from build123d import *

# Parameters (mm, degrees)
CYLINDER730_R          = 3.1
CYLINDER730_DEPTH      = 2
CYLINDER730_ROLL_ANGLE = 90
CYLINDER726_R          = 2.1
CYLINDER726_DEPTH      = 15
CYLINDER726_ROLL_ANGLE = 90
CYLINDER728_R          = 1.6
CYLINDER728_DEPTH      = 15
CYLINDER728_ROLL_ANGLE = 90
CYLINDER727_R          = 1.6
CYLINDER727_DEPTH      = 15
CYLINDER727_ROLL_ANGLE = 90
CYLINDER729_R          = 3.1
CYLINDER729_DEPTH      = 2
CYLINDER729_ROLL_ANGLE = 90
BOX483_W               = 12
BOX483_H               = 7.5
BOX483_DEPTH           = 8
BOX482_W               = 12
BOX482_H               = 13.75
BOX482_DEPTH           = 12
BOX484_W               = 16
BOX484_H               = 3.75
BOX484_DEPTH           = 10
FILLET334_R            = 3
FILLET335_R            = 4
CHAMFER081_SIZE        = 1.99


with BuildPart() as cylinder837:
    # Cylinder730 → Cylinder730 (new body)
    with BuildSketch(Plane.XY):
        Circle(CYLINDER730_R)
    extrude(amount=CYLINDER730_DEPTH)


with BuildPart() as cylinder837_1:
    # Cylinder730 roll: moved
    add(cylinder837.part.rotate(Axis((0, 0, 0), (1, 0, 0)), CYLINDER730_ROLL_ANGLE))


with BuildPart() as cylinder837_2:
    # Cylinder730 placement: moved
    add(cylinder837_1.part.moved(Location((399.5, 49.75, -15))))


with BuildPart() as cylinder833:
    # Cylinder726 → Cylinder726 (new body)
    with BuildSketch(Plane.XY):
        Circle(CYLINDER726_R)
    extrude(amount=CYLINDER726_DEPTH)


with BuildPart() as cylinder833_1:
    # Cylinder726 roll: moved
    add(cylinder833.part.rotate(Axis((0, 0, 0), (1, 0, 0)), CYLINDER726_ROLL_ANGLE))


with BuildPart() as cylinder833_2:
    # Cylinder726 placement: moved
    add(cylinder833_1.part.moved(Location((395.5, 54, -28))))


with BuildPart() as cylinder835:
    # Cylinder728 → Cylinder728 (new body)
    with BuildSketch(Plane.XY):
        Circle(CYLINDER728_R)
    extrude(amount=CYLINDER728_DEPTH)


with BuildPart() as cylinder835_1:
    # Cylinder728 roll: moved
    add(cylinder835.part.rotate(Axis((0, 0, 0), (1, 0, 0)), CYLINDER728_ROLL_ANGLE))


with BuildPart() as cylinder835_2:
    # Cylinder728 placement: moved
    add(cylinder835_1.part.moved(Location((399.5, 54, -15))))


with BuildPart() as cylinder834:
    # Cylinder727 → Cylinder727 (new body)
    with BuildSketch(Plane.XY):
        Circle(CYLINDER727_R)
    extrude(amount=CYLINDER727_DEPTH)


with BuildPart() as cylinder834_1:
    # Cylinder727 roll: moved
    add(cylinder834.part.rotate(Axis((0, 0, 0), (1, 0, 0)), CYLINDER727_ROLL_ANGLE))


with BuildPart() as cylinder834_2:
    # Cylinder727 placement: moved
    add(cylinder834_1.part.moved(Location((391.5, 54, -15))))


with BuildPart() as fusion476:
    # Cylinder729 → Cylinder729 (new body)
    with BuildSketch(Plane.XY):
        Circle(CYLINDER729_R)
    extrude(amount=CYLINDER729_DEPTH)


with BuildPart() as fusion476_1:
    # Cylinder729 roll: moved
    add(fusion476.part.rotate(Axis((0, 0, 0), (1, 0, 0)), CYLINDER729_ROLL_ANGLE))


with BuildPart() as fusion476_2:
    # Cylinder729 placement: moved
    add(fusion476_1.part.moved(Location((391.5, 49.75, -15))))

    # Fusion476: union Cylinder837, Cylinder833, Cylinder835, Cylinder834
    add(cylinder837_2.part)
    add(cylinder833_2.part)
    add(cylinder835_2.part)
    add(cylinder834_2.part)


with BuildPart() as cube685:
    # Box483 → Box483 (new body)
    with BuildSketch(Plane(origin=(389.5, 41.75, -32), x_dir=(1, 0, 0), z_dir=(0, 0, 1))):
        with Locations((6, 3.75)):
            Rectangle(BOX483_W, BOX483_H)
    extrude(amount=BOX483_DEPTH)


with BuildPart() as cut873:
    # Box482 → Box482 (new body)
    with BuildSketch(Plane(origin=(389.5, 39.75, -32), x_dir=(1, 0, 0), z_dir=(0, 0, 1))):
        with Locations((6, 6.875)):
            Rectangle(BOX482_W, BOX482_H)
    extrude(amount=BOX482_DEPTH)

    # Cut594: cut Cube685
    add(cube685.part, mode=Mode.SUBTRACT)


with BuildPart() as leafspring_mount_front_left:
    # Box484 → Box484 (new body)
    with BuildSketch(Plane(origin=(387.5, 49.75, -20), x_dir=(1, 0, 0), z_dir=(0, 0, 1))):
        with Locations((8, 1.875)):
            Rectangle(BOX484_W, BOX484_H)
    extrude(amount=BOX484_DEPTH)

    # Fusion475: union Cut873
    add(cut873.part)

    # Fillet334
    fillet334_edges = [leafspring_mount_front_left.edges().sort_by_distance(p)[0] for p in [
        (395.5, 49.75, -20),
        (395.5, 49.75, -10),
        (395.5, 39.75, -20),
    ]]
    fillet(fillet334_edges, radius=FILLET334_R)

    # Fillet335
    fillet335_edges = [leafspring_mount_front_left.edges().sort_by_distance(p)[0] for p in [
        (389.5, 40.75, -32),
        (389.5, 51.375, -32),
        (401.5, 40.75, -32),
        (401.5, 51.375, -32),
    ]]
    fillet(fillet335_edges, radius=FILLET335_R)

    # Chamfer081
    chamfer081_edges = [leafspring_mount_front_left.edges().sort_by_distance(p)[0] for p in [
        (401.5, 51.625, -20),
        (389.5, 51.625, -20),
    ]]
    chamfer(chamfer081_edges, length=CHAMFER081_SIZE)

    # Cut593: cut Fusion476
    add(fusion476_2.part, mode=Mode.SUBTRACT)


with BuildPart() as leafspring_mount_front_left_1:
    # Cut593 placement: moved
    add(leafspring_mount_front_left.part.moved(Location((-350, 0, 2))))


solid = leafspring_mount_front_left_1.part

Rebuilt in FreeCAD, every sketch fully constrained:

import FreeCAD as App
import Part
import Sketcher
from FreeCAD import Vector


def edges_at(feature, points):
    """Names of the edges that pass closest to the given points."""
    edges = feature.Shape.Edges
    near = lambda p: min(range(len(edges)), key=lambda i: edges[i].distToShape(Part.Vertex(*p))[0])
    return sorted({f"Edge{near(p) + 1}" for p in points})


def add_polygon(sketch, points):
    """Adds a closed chain of lines whose ends are joined by coincident constraints."""
    first, n = sketch.GeometryCount, len(points)
    for a, b in zip(points, points[1:] + points[:1]):
        sketch.addGeometry(Part.LineSegment(App.Vector(*a, 0), App.Vector(*b, 0)), False)
    for i in range(n):
        sketch.addConstraint(Sketcher.Constraint("Coincident", first + i, 2, first + (i + 1) % n, 1))

doc = App.newDocument("Part")
params = doc.addObject("Spreadsheet::Sheet", "Params")
for row, (alias, value) in enumerate([
    ("sketch1_diameter", "6.2 mm"),
    ("pad1_length", "2 mm"),
    ("sketch2_diameter", "4.2 mm"),
    ("pad2_length", "15 mm"),
    ("sketch3_diameter", "3.2 mm"),
    ("pad3_length", "15 mm"),
    ("sketch4_diameter", "3.2 mm"),
    ("pad4_length", "15 mm"),
    ("sketch5_diameter", "6.2 mm"),
    ("pad5_length", "2 mm"),
    ("sketch6_width", "12 mm"),
    ("sketch6_height", "7.5 mm"),
    ("pad6_length", "8 mm"),
    ("sketch7_width", "12 mm"),
    ("sketch7_height", "13.75 mm"),
    ("pad7_length", "12 mm"),
    ("sketch8_width", "16 mm"),
    ("sketch8_height", "3.75 mm"),
    ("pad8_length", "10 mm"),
    ("fillet_radius", "3 mm"),
    ("fillet2_radius", "4 mm"),
    ("chamfer_size", "1.99 mm"),
], start=1):
    params.set(f"A{row}", alias)
    params.set(f"B{row}", "=" + value)
    params.setAlias(f"B{row}", alias)

body = doc.addObject("PartDesign::Body", "Body")

sketch1 = doc.addObject("Sketcher::SketchObject", "Sketch")
body.addObject(sketch1)
sketch1.AttachmentSupport = (doc.XY_Plane, [""])
sketch1.MapMode = "FlatFace"
sketch1.addGeometry(Part.Circle(Vector(0, 0, 0), Vector(0, 0, 1), 3.1), False)
sketch1.addConstraint(Sketcher.Constraint("Coincident", 0, 3, -1, 1))
sketch1.addConstraint(Sketcher.Constraint("Diameter", 0, 6.2))
sketch1.setExpression("Constraints[1]", "Params.sketch1_diameter")
pad1 = doc.addObject("PartDesign::Pad", "Pad")
body.addObject(pad1)
pad1.Profile = sketch1
pad1.setExpression("Length", "Params.pad1_length")
body2 = doc.addObject("PartDesign::Body", "Body001")
doc.recompute()

body.Placement = App.Placement(Vector(0, 0, 0), App.Rotation(Vector(1, 0, 0), 90))
boolean = doc.addObject("PartDesign::Boolean", "Boolean")
body2.addObject(boolean)
boolean.Type = "Fuse"
boolean.addObjects([body])
body3 = doc.addObject("PartDesign::Body", "Body002")
doc.recompute()

body2.Placement = App.Placement(Vector(399.5, 49.75, -15), App.Rotation(Vector(0, 0, 1), 0))
boolean2 = doc.addObject("PartDesign::Boolean", "Boolean001")
body3.addObject(boolean2)
boolean2.Type = "Fuse"
boolean2.addObjects([body2])
body4 = doc.addObject("PartDesign::Body", "Body003")

sketch2 = doc.addObject("Sketcher::SketchObject", "Sketch001")
body4.addObject(sketch2)
sketch2.AttachmentSupport = (doc.getObject("XY_Plane003"), [""])
sketch2.MapMode = "FlatFace"
sketch2.addGeometry(Part.Circle(Vector(0, 0, 0), Vector(0, 0, 1), 2.1), False)
sketch2.addConstraint(Sketcher.Constraint("Coincident", 0, 3, -1, 1))
sketch2.addConstraint(Sketcher.Constraint("Diameter", 0, 4.2))
sketch2.setExpression("Constraints[1]", "Params.sketch2_diameter")
pad2 = doc.addObject("PartDesign::Pad", "Pad001")
body4.addObject(pad2)
pad2.Profile = sketch2
pad2.setExpression("Length", "Params.pad2_length")
body5 = doc.addObject("PartDesign::Body", "Body004")
doc.recompute()

body4.Placement = App.Placement(Vector(0, 0, 0), App.Rotation(Vector(1, 0, 0), 90))
boolean3 = doc.addObject("PartDesign::Boolean", "Boolean002")
body5.addObject(boolean3)
boolean3.Type = "Fuse"
boolean3.addObjects([body4])
body6 = doc.addObject("PartDesign::Body", "Body005")
doc.recompute()

body5.Placement = App.Placement(Vector(395.5, 54, -28), App.Rotation(Vector(0, 0, 1), 0))
boolean4 = doc.addObject("PartDesign::Boolean", "Boolean003")
body6.addObject(boolean4)
boolean4.Type = "Fuse"
boolean4.addObjects([body5])
body7 = doc.addObject("PartDesign::Body", "Body006")

sketch3 = doc.addObject("Sketcher::SketchObject", "Sketch002")
body7.addObject(sketch3)
sketch3.AttachmentSupport = (doc.getObject("XY_Plane006"), [""])
sketch3.MapMode = "FlatFace"
sketch3.addGeometry(Part.Circle(Vector(0, 0, 0), Vector(0, 0, 1), 1.6), False)
sketch3.addConstraint(Sketcher.Constraint("Coincident", 0, 3, -1, 1))
sketch3.addConstraint(Sketcher.Constraint("Diameter", 0, 3.2))
sketch3.setExpression("Constraints[1]", "Params.sketch3_diameter")
pad3 = doc.addObject("PartDesign::Pad", "Pad002")
body7.addObject(pad3)
pad3.Profile = sketch3
pad3.setExpression("Length", "Params.pad3_length")
body8 = doc.addObject("PartDesign::Body", "Body007")
doc.recompute()

body7.Placement = App.Placement(Vector(0, 0, 0), App.Rotation(Vector(1, 0, 0), 90))
boolean5 = doc.addObject("PartDesign::Boolean", "Boolean004")
body8.addObject(boolean5)
boolean5.Type = "Fuse"
boolean5.addObjects([body7])
body9 = doc.addObject("PartDesign::Body", "Body008")
doc.recompute()

body8.Placement = App.Placement(Vector(399.5, 54, -15), App.Rotation(Vector(0, 0, 1), 0))
boolean6 = doc.addObject("PartDesign::Boolean", "Boolean005")
body9.addObject(boolean6)
boolean6.Type = "Fuse"
boolean6.addObjects([body8])
body10 = doc.addObject("PartDesign::Body", "Body009")

sketch4 = doc.addObject("Sketcher::SketchObject", "Sketch003")
body10.addObject(sketch4)
sketch4.AttachmentSupport = (doc.getObject("XY_Plane009"), [""])
sketch4.MapMode = "FlatFace"
sketch4.addGeometry(Part.Circle(Vector(0, 0, 0), Vector(0, 0, 1), 1.6), False)
sketch4.addConstraint(Sketcher.Constraint("Coincident", 0, 3, -1, 1))
sketch4.addConstraint(Sketcher.Constraint("Diameter", 0, 3.2))
sketch4.setExpression("Constraints[1]", "Params.sketch4_diameter")
pad4 = doc.addObject("PartDesign::Pad", "Pad003")
body10.addObject(pad4)
pad4.Profile = sketch4
pad4.setExpression("Length", "Params.pad4_length")
body11 = doc.addObject("PartDesign::Body", "Body010")
doc.recompute()

body10.Placement = App.Placement(Vector(0, 0, 0), App.Rotation(Vector(1, 0, 0), 90))
boolean7 = doc.addObject("PartDesign::Boolean", "Boolean006")
body11.addObject(boolean7)
boolean7.Type = "Fuse"
boolean7.addObjects([body10])
body12 = doc.addObject("PartDesign::Body", "Body011")
doc.recompute()

body11.Placement = App.Placement(Vector(391.5, 54, -15), App.Rotation(Vector(0, 0, 1), 0))
boolean8 = doc.addObject("PartDesign::Boolean", "Boolean007")
body12.addObject(boolean8)
boolean8.Type = "Fuse"
boolean8.addObjects([body11])
body13 = doc.addObject("PartDesign::Body", "Body012")

sketch5 = doc.addObject("Sketcher::SketchObject", "Sketch004")
body13.addObject(sketch5)
sketch5.AttachmentSupport = (doc.getObject("XY_Plane012"), [""])
sketch5.MapMode = "FlatFace"
sketch5.addGeometry(Part.Circle(Vector(0, 0, 0), Vector(0, 0, 1), 3.1), False)
sketch5.addConstraint(Sketcher.Constraint("Coincident", 0, 3, -1, 1))
sketch5.addConstraint(Sketcher.Constraint("Diameter", 0, 6.2))
sketch5.setExpression("Constraints[1]", "Params.sketch5_diameter")
pad5 = doc.addObject("PartDesign::Pad", "Pad004")
body13.addObject(pad5)
pad5.Profile = sketch5
pad5.setExpression("Length", "Params.pad5_length")
body14 = doc.addObject("PartDesign::Body", "Body013")
doc.recompute()

body13.Placement = App.Placement(Vector(0, 0, 0), App.Rotation(Vector(1, 0, 0), 90))
boolean9 = doc.addObject("PartDesign::Boolean", "Boolean008")
body14.addObject(boolean9)
boolean9.Type = "Fuse"
boolean9.addObjects([body13])
body15 = doc.addObject("PartDesign::Body", "Body014")
body15.AllowCompound = True
doc.recompute()

body14.Placement = App.Placement(Vector(391.5, 49.75, -15), App.Rotation(Vector(0, 0, 1), 0))
boolean10 = doc.addObject("PartDesign::Boolean", "Boolean009")
body15.addObject(boolean10)
boolean10.Type = "Fuse"
boolean10.addObjects([body14])
doc.recompute()

boolean11 = doc.addObject("PartDesign::Boolean", "Boolean010")
body15.addObject(boolean11)
boolean11.Type = "Fuse"
boolean11.addObjects([body3])
doc.recompute()

boolean12 = doc.addObject("PartDesign::Boolean", "Boolean011")
body15.addObject(boolean12)
boolean12.Type = "Fuse"
boolean12.addObjects([body6])
doc.recompute()

boolean13 = doc.addObject("PartDesign::Boolean", "Boolean012")
body15.addObject(boolean13)
boolean13.Type = "Fuse"
boolean13.addObjects([body9])
doc.recompute()

boolean14 = doc.addObject("PartDesign::Boolean", "Boolean013")
body15.addObject(boolean14)
boolean14.Type = "Fuse"
boolean14.addObjects([body12])
body16 = doc.addObject("PartDesign::Body", "Body015")

sketch6 = doc.addObject("Sketcher::SketchObject", "Sketch005")
body16.addObject(sketch6)
sketch6.AttachmentSupport = (doc.getObject("XY_Plane015"), [""])
sketch6.MapMode = "FlatFace"
sketch6.AttachmentOffset = App.Placement(Vector(0, 0, -32), App.Rotation())
add_polygon(sketch6, [(390, 49), (390, 42), (402, 42), (402, 49)])
sketch6.addConstraint(Sketcher.Constraint("Vertical", 0))
sketch6.addConstraint(Sketcher.Constraint("Horizontal", 1))
sketch6.addConstraint(Sketcher.Constraint("Vertical", 2))
sketch6.addConstraint(Sketcher.Constraint("Horizontal", 3))
sketch6.addConstraint(Sketcher.Constraint("DistanceX", 1, 1, 1, 2, 12.0))
sketch6.addConstraint(Sketcher.Constraint("DistanceY", 0, 2, 0, 1, 7.5))
sketch6.addConstraint(Sketcher.Constraint("DistanceX", -1, 1, 0, 2, 389.5))
sketch6.addConstraint(Sketcher.Constraint("DistanceY", -1, 1, 0, 2, 41.75))
sketch6.setExpression("Constraints[8]", "Params.sketch6_width")
sketch6.setExpression("Constraints[9]", "Params.sketch6_height")
pad6 = doc.addObject("PartDesign::Pad", "Pad005")
body16.addObject(pad6)
pad6.Profile = sketch6
pad6.setExpression("Length", "Params.pad6_length")
body17 = doc.addObject("PartDesign::Body", "Body016")

sketch7 = doc.addObject("Sketcher::SketchObject", "Sketch006")
body17.addObject(sketch7)
sketch7.AttachmentSupport = (doc.getObject("XY_Plane016"), [""])
sketch7.MapMode = "FlatFace"
sketch7.AttachmentOffset = App.Placement(Vector(0, 0, -32), App.Rotation())
add_polygon(sketch7, [(390, 54), (390, 40), (402, 40), (402, 54)])
sketch7.addConstraint(Sketcher.Constraint("Vertical", 0))
sketch7.addConstraint(Sketcher.Constraint("Horizontal", 1))
sketch7.addConstraint(Sketcher.Constraint("Vertical", 2))
sketch7.addConstraint(Sketcher.Constraint("Horizontal", 3))
sketch7.addConstraint(Sketcher.Constraint("DistanceX", 1, 1, 1, 2, 12.0))
sketch7.addConstraint(Sketcher.Constraint("DistanceY", 0, 2, 0, 1, 13.75))
sketch7.addConstraint(Sketcher.Constraint("DistanceX", -1, 1, 0, 2, 389.5))
sketch7.addConstraint(Sketcher.Constraint("DistanceY", -1, 1, 2, 2, 53.5))
sketch7.setExpression("Constraints[8]", "Params.sketch7_width")
sketch7.setExpression("Constraints[9]", "Params.sketch7_height")
pad7 = doc.addObject("PartDesign::Pad", "Pad006")
body17.addObject(pad7)
pad7.Profile = sketch7
pad7.setExpression("Length", "Params.pad7_length")
doc.recompute()

boolean15 = doc.addObject("PartDesign::Boolean", "Boolean014")
body17.addObject(boolean15)
boolean15.Type = "Cut"
boolean15.addObjects([body16])
body18 = doc.addObject("PartDesign::Body", "Body017")

sketch8 = doc.addObject("Sketcher::SketchObject", "Sketch007")
body18.addObject(sketch8)
sketch8.AttachmentSupport = (doc.getObject("XY_Plane017"), [""])
sketch8.MapMode = "FlatFace"
sketch8.AttachmentOffset = App.Placement(Vector(0, 0, -20), App.Rotation())
add_polygon(sketch8, [(387.5, 53.5), (387.5, 49.8), (403.5, 49.8), (403.5, 53.5)])
sketch8.addConstraint(Sketcher.Constraint("Vertical", 0))
sketch8.addConstraint(Sketcher.Constraint("Horizontal", 1))
sketch8.addConstraint(Sketcher.Constraint("Vertical", 2))
sketch8.addConstraint(Sketcher.Constraint("Horizontal", 3))
sketch8.addConstraint(Sketcher.Constraint("DistanceX", 1, 1, 1, 2, 16.0))
sketch8.addConstraint(Sketcher.Constraint("DistanceY", 0, 2, 0, 1, 3.75))
sketch8.addConstraint(Sketcher.Constraint("DistanceX", -1, 1, 0, 2, 387.5))
sketch8.addConstraint(Sketcher.Constraint("DistanceY", -1, 1, 2, 2, 53.5))
sketch8.setExpression("Constraints[8]", "Params.sketch8_width")
sketch8.setExpression("Constraints[9]", "Params.sketch8_height")
pad8 = doc.addObject("PartDesign::Pad", "Pad007")
body18.addObject(pad8)
pad8.Profile = sketch8
pad8.setExpression("Length", "Params.pad8_length")
doc.recompute()

boolean16 = doc.addObject("PartDesign::Boolean", "Boolean015")
body18.addObject(boolean16)
boolean16.Type = "Fuse"
boolean16.addObjects([body17])
doc.recompute()

fillet = doc.addObject("PartDesign::Fillet", "Fillet")
body18.addObject(fillet)
fillet.Base = (boolean16, edges_at(boolean16, [(395.5, 49.75, -20), (395.5, 49.75, -10), (395.5, 39.75, -20)]))
fillet.setExpression("Radius", "Params.fillet_radius")
doc.recompute()

fillet2 = doc.addObject("PartDesign::Fillet", "Fillet001")
body18.addObject(fillet2)
fillet2.Base = (fillet, edges_at(fillet, [
    (389.5, 40.75, -32),
    (389.5, 51.375, -32),
    (401.5, 40.75, -32),
    (401.5, 51.375, -32),
]))
fillet2.setExpression("Radius", "Params.fillet2_radius")
doc.recompute()

chamfer = doc.addObject("PartDesign::Chamfer", "Chamfer")
body18.addObject(chamfer)
chamfer.Base = (fillet2, edges_at(fillet2, [(401.5, 51.625, -20), (389.5, 51.625, -20)]))
chamfer.setExpression("Size", "Params.chamfer_size")
doc.recompute()

boolean17 = doc.addObject("PartDesign::Boolean", "Boolean016")
body18.addObject(boolean17)
boolean17.Type = "Cut"
boolean17.addObjects([body15])
body19 = doc.addObject("PartDesign::Body", "Body018")
doc.recompute()

body18.Placement = App.Placement(Vector(-350, 0, 2), App.Rotation(Vector(0, 0, 1), 0))
boolean18 = doc.addObject("PartDesign::Boolean", "Boolean017")
body19.addObject(boolean18)
boolean18.Type = "Fuse"
boolean18.addObjects([body18])

doc.recompute()
